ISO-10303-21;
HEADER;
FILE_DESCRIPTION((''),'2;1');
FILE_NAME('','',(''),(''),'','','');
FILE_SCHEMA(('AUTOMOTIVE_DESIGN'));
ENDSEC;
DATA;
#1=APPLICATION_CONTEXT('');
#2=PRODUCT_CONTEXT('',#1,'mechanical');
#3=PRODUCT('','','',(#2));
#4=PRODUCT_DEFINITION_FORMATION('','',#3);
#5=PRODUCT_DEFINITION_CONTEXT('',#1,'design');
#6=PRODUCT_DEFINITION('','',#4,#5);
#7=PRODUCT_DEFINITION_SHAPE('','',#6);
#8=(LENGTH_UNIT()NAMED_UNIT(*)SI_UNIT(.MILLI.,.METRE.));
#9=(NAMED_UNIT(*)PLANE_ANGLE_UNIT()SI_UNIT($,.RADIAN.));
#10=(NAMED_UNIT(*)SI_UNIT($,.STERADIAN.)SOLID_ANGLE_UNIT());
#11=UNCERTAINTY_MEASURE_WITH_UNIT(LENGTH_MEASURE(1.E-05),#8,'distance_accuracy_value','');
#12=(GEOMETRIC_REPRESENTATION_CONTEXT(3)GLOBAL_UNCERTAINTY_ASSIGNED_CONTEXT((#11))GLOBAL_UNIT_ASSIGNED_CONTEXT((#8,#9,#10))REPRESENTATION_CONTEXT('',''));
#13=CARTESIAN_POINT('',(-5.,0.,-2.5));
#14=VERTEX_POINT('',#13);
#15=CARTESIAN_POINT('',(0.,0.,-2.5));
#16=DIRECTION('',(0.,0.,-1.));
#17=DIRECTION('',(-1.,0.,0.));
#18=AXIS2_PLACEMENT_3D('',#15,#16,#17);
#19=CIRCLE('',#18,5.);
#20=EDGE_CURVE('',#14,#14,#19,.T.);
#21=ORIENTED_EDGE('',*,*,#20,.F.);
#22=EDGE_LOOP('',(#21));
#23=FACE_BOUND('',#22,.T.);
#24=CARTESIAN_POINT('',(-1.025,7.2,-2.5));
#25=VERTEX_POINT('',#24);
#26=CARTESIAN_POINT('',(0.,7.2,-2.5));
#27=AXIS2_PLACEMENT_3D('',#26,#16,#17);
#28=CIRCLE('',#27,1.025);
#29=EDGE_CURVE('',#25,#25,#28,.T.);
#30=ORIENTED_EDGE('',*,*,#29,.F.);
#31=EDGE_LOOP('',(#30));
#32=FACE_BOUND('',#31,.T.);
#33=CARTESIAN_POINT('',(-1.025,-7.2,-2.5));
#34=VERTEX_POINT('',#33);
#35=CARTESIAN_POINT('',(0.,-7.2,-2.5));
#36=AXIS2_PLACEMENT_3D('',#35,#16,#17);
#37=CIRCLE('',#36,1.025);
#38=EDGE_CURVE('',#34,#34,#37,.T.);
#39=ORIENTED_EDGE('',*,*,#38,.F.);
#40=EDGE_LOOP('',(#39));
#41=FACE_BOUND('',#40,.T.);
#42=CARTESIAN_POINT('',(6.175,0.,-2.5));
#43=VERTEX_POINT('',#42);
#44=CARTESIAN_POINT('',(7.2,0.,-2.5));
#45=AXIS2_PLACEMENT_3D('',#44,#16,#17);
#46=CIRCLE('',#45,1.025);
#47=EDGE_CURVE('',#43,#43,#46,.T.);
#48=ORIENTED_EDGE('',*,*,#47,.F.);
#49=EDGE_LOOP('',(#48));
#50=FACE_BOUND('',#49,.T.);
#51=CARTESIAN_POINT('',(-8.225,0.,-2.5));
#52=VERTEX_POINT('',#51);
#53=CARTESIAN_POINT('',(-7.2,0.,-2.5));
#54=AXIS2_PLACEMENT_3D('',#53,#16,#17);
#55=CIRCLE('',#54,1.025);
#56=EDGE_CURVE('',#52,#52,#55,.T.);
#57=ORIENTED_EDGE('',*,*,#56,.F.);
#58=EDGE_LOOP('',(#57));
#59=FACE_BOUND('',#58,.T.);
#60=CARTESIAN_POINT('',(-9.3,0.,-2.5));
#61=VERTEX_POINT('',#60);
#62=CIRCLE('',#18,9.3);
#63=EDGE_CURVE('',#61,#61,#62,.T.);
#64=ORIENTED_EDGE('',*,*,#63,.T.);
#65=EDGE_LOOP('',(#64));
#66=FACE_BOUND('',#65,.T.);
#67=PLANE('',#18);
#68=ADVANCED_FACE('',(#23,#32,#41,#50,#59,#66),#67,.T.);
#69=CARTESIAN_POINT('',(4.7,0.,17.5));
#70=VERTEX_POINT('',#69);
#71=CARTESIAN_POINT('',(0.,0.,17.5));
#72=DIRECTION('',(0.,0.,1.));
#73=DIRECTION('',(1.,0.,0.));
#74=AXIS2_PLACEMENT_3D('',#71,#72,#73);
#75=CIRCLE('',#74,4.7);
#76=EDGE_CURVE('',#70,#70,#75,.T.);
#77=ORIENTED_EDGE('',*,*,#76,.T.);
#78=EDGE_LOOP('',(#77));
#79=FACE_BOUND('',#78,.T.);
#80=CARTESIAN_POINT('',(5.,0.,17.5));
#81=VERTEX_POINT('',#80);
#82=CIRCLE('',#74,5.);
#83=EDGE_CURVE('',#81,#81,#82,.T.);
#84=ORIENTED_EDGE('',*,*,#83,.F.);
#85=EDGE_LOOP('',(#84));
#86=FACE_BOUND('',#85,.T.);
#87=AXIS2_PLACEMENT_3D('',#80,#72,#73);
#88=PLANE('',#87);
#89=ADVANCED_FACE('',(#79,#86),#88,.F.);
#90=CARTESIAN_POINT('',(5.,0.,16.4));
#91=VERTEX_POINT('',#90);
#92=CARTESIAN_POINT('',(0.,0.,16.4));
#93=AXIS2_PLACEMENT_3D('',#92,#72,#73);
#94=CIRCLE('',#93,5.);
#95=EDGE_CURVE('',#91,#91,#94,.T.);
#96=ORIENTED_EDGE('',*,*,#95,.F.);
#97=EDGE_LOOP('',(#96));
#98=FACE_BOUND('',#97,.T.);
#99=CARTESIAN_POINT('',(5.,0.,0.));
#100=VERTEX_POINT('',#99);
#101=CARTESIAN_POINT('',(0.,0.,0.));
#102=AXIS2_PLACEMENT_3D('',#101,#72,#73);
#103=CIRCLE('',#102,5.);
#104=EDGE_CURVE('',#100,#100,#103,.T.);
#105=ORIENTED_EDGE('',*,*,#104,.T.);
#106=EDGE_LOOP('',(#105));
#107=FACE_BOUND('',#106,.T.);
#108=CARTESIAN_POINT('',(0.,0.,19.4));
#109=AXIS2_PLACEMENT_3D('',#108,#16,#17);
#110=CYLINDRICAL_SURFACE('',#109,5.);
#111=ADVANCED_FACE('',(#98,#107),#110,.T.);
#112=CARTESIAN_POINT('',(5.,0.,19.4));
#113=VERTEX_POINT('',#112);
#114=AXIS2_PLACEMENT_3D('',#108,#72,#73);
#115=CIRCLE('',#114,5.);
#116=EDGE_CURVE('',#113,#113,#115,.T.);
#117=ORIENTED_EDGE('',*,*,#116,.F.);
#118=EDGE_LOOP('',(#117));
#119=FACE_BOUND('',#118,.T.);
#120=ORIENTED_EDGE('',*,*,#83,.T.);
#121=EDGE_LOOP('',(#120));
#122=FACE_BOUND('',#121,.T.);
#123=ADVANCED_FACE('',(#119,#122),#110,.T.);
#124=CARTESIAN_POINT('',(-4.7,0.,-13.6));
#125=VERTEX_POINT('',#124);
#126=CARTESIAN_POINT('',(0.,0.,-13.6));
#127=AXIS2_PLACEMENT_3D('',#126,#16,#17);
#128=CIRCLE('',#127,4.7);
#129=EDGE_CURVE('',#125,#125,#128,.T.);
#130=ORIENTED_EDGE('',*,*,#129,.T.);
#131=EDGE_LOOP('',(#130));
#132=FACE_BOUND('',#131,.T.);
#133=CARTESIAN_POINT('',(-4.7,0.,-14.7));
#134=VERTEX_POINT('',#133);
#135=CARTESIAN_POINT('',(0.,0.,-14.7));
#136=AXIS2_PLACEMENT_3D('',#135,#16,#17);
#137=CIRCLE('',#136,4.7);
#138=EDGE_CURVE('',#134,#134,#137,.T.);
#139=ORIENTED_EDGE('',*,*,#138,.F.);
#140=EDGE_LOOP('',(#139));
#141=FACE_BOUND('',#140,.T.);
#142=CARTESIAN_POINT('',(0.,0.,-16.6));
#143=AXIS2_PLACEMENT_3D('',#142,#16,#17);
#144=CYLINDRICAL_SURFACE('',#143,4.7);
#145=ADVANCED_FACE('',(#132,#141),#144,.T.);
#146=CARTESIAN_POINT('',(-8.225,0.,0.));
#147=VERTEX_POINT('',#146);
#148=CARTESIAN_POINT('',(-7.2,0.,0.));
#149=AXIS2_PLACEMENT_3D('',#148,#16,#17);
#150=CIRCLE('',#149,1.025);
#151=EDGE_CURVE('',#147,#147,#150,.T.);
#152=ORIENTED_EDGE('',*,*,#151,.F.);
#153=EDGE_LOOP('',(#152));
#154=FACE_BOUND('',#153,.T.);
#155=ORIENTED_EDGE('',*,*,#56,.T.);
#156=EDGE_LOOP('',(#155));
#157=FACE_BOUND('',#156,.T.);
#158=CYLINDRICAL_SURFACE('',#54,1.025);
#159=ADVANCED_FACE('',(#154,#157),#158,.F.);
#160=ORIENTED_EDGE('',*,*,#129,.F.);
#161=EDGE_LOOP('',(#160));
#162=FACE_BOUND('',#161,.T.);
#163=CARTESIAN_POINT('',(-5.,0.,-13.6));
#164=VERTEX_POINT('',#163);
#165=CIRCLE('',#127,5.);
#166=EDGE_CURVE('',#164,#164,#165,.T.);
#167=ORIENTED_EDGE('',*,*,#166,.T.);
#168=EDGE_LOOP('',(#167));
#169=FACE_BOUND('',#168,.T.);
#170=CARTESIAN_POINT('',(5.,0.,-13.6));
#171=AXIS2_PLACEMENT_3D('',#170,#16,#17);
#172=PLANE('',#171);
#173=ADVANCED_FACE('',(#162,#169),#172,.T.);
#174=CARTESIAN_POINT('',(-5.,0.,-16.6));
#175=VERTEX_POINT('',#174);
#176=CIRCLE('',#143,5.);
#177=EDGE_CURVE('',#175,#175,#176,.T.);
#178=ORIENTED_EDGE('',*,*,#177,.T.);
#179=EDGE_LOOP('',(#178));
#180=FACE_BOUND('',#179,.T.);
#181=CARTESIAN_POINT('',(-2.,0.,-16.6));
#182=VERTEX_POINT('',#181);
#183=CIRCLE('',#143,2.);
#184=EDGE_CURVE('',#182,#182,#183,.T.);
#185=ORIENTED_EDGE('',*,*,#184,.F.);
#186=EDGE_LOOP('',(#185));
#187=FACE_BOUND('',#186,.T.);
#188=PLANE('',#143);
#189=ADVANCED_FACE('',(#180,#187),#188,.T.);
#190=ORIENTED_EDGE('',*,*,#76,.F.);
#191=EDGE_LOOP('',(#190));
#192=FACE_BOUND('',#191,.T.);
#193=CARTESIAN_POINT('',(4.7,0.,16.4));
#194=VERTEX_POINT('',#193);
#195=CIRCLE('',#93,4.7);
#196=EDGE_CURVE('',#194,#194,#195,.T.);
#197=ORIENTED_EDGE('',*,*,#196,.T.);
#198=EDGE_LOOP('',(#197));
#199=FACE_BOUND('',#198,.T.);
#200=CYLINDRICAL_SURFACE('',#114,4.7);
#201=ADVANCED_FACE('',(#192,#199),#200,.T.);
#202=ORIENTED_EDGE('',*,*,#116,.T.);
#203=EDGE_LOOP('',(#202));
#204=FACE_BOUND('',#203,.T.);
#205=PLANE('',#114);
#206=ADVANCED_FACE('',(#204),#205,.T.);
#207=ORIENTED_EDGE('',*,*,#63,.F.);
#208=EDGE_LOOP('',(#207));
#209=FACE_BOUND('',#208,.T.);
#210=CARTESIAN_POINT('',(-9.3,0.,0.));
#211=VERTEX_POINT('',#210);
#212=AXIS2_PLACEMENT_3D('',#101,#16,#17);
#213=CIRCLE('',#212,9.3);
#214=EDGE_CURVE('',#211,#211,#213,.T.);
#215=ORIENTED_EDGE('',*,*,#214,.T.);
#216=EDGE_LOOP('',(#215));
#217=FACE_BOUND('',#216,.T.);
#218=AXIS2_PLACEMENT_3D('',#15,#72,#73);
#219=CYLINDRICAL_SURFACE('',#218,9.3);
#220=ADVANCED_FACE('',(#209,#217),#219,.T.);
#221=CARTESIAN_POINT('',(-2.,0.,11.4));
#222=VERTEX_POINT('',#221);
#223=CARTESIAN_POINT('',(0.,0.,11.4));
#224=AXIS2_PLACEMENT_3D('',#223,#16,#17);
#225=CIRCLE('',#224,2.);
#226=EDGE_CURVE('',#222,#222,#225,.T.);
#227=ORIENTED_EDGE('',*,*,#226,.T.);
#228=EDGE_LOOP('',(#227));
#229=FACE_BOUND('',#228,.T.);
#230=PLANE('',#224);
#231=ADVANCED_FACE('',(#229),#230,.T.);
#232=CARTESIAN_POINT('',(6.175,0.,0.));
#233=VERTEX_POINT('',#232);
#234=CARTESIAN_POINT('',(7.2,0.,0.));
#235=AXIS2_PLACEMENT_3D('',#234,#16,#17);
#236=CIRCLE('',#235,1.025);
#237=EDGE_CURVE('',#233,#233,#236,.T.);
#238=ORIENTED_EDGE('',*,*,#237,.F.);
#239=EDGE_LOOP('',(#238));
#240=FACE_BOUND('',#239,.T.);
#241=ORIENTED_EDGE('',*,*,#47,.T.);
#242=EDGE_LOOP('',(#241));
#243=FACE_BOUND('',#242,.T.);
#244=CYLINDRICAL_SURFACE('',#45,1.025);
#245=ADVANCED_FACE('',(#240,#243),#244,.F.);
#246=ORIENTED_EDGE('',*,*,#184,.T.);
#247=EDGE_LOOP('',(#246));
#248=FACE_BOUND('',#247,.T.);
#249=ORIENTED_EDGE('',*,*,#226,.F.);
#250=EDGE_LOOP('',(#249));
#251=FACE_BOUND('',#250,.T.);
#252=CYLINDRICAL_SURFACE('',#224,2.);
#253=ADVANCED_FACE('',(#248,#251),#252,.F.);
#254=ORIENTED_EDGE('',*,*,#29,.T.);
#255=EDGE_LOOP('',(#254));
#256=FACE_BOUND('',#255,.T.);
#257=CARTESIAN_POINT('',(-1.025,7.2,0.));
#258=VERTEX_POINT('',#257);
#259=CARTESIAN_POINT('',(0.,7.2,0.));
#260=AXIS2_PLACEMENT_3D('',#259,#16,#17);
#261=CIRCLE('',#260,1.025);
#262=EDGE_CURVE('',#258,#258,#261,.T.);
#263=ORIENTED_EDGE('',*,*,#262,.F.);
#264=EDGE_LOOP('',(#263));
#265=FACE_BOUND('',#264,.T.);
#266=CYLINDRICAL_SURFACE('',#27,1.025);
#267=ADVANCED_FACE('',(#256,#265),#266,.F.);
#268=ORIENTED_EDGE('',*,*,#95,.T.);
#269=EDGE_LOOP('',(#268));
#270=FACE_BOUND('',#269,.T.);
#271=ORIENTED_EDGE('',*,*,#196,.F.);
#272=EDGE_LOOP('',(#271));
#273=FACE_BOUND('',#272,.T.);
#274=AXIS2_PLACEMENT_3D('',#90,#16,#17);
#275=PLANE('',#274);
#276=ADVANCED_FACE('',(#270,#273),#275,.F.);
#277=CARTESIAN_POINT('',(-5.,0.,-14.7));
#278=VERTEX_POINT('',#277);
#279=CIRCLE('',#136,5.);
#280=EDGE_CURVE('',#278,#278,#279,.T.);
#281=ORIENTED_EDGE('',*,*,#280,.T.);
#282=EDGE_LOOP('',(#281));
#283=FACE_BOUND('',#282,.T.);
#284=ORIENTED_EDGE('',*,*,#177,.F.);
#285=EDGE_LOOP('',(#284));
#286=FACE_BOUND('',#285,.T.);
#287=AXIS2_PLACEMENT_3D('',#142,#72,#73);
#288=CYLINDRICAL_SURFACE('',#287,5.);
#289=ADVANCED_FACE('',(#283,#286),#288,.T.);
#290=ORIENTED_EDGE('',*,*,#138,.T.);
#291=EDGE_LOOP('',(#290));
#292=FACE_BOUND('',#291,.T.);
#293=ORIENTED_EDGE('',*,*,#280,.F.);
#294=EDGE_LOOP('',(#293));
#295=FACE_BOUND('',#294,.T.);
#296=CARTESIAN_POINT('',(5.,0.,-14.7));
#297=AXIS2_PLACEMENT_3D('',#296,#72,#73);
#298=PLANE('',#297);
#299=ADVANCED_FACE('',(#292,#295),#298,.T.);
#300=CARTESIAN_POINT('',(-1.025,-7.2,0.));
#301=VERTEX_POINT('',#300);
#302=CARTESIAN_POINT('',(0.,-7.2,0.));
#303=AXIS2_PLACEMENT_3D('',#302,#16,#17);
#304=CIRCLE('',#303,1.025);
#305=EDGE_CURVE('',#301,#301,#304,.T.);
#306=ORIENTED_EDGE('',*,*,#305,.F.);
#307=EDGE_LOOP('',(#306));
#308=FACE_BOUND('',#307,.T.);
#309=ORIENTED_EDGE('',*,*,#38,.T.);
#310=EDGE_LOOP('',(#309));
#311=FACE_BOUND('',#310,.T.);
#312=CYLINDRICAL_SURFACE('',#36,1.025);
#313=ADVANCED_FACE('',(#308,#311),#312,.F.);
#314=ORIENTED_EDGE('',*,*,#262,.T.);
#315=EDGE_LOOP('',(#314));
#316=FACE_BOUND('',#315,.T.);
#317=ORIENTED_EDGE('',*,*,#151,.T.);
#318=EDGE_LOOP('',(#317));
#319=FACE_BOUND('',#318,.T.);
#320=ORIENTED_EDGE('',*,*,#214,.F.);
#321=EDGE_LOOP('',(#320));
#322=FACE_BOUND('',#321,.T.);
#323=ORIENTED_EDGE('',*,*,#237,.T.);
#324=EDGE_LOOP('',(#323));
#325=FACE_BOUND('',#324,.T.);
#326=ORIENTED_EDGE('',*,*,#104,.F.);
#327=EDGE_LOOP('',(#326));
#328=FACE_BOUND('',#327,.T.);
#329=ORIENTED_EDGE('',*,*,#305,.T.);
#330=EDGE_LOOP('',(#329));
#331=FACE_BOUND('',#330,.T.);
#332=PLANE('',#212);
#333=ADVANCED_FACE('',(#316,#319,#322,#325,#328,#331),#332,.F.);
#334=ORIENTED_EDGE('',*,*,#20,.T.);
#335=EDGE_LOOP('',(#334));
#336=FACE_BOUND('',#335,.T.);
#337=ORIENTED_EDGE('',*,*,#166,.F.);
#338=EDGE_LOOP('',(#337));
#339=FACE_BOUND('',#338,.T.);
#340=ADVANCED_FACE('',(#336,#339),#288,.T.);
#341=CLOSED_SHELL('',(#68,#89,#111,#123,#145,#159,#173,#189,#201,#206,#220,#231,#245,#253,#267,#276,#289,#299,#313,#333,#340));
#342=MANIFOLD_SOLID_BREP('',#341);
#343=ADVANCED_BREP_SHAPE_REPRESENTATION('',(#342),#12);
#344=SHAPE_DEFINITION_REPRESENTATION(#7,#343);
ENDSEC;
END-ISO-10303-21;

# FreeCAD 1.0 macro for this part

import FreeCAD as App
import Part
import Sketcher


def add_polygon(sketch, points):
    """Adds a closed chain of lines whose ends are joined by coincident constraints."""
    first, n = sketch.GeometryCount, len(points)
    for a, b in zip(points, points[1:] + points[:1]):
        sketch.addGeometry(Part.LineSegment(App.Vector(*a, 0), App.Vector(*b, 0)), False)
    for i in range(n):
        sketch.addConstraint(Sketcher.Constraint("Coincident", first + i, 2, first + (i + 1) % n, 1))

doc = App.newDocument("Part")
body = doc.addObject("PartDesign::Body", "Body")

# Sketch on XY plane
sketch1 = body.newObject("Sketcher::SketchObject", "Sketch")
sketch1.AttachmentSupport = (doc.getObject("XY_Plane"), [""])
sketch1.MapMode = "FlatFace"
sketch1.addGeometry(Part.Circle(App.Vector(0, 0, 0), App.Vector(0, 0, 1), 5), False)
sketch1.addConstraint(Sketcher.Constraint("Coincident", 0, 3, -1, 1))
sketch1.addConstraint(Sketcher.Constraint("Diameter", 0, 10.0))
pad1 = body.newObject("PartDesign::Pad", "Pad")
pad1.Profile = sketch1
pad1.Length = 19.4

# Sketch on XY plane
sketch2 = body.newObject("Sketcher::SketchObject", "Sketch001")
sketch2.AttachmentSupport = (doc.getObject("XY_Plane"), [""])
sketch2.MapMode = "FlatFace"
sketch2.addGeometry(Part.Circle(App.Vector(0, 0, 0), App.Vector(0, 0, 1), 9.3), False)
sketch2.addConstraint(Sketcher.Constraint("Coincident", 0, 3, -1, 1))
sketch2.addConstraint(Sketcher.Constraint("Diameter", 0, 18.6))
pad2 = body.newObject("PartDesign::Pad", "Pad001")
pad2.Profile = sketch2
pad2.Length = 2.5
pad2.Reversed = True

# Sketch on XY plane
sketch3 = body.newObject("Sketcher::SketchObject", "Sketch002")
sketch3.AttachmentSupport = (doc.getObject("XY_Plane"), [""])
sketch3.MapMode = "FlatFace"
sketch3.AttachmentOffset = App.Placement(App.Vector(0, 0, -16.6), App.Rotation())
sketch3.addGeometry(Part.Circle(App.Vector(0, 0, 0), App.Vector(0, 0, 1), 5), False)
sketch3.addConstraint(Sketcher.Constraint("Coincident", 0, 3, -1, 1))
sketch3.addConstraint(Sketcher.Constraint("Diameter", 0, 10.0))
pad3 = body.newObject("PartDesign::Pad", "Pad002")
pad3.Profile = sketch3
pad3.Length = 14.1

# Sketch on XZ plane
sketch4 = body.newObject("Sketcher::SketchObject", "Sketch003")
sketch4.AttachmentSupport = (doc.getObject("XZ_Plane"), [""])
sketch4.MapMode = "FlatFace"
add_polygon(sketch4, [(4.7, -14.7), (4.7, -13.6), (5, -13.6), (5, -14.7)])  # lines 0-3
sketch4.addConstraint(Sketcher.Constraint("Vertical", 0))
sketch4.addConstraint(Sketcher.Constraint("Horizontal", 1))
sketch4.addConstraint(Sketcher.Constraint("Vertical", 2))
sketch4.addConstraint(Sketcher.Constraint("Horizontal", 3))
sketch4.addConstraint(Sketcher.Constraint("DistanceX", 1, 1, 1, 2, 0.3))
sketch4.addConstraint(Sketcher.Constraint("DistanceY", 0, 1, 0, 2, 1.1))
sketch4.addConstraint(Sketcher.Constraint("DistanceX", -1, 1, 1, 2, 5.0))
sketch4.addConstraint(Sketcher.Constraint("DistanceY", 0, 2, -1, 1, 13.6))
groove = body.newObject("PartDesign::Groove", "Groove")
groove.Profile = sketch4
groove.ReferenceAxis = (sketch4, ["V_Axis"])
groove.Angle = 360

# Sketch on XZ plane
sketch5 = body.newObject("Sketcher::SketchObject", "Sketch004")
sketch5.AttachmentSupport = (doc.getObject("XZ_Plane"), [""])
sketch5.MapMode = "FlatFace"
add_polygon(sketch5, [(4.7, 16.4), (4.7, 17.5), (5, 17.5), (5, 16.4)])  # lines 0-3
sketch5.addConstraint(Sketcher.Constraint("Vertical", 0))
sketch5.addConstraint(Sketcher.Constraint("Horizontal", 1))
sketch5.addConstraint(Sketcher.Constraint("Vertical", 2))
sketch5.addConstraint(Sketcher.Constraint("Horizontal", 3))
sketch5.addConstraint(Sketcher.Constraint("DistanceX", 1, 1, 1, 2, 0.3))
sketch5.addConstraint(Sketcher.Constraint("DistanceY", 0, 1, 0, 2, 1.1))
sketch5.addConstraint(Sketcher.Constraint("DistanceX", -1, 1, 1, 2, 5.0))
sketch5.addConstraint(Sketcher.Constraint("DistanceY", -1, 1, 0, 2, 17.5))
groove2 = body.newObject("PartDesign::Groove", "Groove001")
groove2.Profile = sketch5
groove2.ReferenceAxis = (sketch5, ["V_Axis"])
groove2.Angle = 360

# Sketch on XY plane
sketch6 = body.newObject("Sketcher::SketchObject", "Sketch005")
sketch6.AttachmentSupport = (doc.getObject("XY_Plane"), [""])
sketch6.MapMode = "FlatFace"
sketch6.AttachmentOffset = App.Placement(App.Vector(0, 0, -2.5), App.Rotation())
sketch6.addGeometry(Part.Circle(App.Vector(0, 7.2, 0), App.Vector(0, 0, 1), 1.025), False)
sketch6.addGeometry(Part.Circle(App.Vector(-7.2, 0, 0), App.Vector(0, 0, 1), 1.025), False)
sketch6.addGeometry(Part.Circle(App.Vector(7.2, 0, 0), App.Vector(0, 0, 1), 1.025), False)
sketch6.addGeometry(Part.Circle(App.Vector(0, -7.2, 0), App.Vector(0, 0, 1), 1.025), False)
sketch6.addConstraint(Sketcher.Constraint("Equal", 0, 1))
sketch6.addConstraint(Sketcher.Constraint("Equal", 1, 2))
sketch6.addConstraint(Sketcher.Constraint("Equal", 2, 3))
sketch6.addConstraint(Sketcher.Constraint("Symmetric", 1, 3, 2, 3, -1, 1))
sketch6.addConstraint(Sketcher.Constraint("Symmetric", 0, 3, 3, 3, -1, 1))
sketch6.addConstraint(Sketcher.Constraint("PointOnObject", 0, 3, -2))
sketch6.addConstraint(Sketcher.Constraint("PointOnObject", 1, 3, -1))
sketch6.addConstraint(Sketcher.Constraint("Diameter", 0, 2.05))
sketch6.addConstraint(Sketcher.Constraint("DistanceY", -1, 1, 0, 3, 7.2))
sketch6.addConstraint(Sketcher.Constraint("DistanceX", 1, 3, -1, 1, 7.2))
doc.recompute()
hole = body.newObject("PartDesign::Hole", "Hole")
hole.Profile = sketch6
hole.ThreadType = "None"
hole.Diameter = 2.05
hole.DepthType = "Dimension"
hole.Depth = 7.25
hole.DrillPoint = "Angled"
hole.DrillPointAngle = 120
hole.Reversed = True

# Sketch on XY plane
sketch7 = body.newObject("Sketcher::SketchObject", "Sketch006")
sketch7.AttachmentSupport = (doc.getObject("XY_Plane"), [""])
sketch7.MapMode = "FlatFace"
sketch7.AttachmentOffset = App.Placement(App.Vector(0, 0, -16.6), App.Rotation())
sketch7.addGeometry(Part.Circle(App.Vector(0, 0, 0), App.Vector(0, 0, 1), 2), False)
sketch7.addConstraint(Sketcher.Constraint("Coincident", 0, 3, -1, 1))
sketch7.addConstraint(Sketcher.Constraint("Diameter", 0, 4.0))
pocket1 = body.newObject("PartDesign::Pocket", "Pocket")
pocket1.Profile = sketch7
pocket1.Length = 28
pocket1.Reversed = True

doc.recompute()
